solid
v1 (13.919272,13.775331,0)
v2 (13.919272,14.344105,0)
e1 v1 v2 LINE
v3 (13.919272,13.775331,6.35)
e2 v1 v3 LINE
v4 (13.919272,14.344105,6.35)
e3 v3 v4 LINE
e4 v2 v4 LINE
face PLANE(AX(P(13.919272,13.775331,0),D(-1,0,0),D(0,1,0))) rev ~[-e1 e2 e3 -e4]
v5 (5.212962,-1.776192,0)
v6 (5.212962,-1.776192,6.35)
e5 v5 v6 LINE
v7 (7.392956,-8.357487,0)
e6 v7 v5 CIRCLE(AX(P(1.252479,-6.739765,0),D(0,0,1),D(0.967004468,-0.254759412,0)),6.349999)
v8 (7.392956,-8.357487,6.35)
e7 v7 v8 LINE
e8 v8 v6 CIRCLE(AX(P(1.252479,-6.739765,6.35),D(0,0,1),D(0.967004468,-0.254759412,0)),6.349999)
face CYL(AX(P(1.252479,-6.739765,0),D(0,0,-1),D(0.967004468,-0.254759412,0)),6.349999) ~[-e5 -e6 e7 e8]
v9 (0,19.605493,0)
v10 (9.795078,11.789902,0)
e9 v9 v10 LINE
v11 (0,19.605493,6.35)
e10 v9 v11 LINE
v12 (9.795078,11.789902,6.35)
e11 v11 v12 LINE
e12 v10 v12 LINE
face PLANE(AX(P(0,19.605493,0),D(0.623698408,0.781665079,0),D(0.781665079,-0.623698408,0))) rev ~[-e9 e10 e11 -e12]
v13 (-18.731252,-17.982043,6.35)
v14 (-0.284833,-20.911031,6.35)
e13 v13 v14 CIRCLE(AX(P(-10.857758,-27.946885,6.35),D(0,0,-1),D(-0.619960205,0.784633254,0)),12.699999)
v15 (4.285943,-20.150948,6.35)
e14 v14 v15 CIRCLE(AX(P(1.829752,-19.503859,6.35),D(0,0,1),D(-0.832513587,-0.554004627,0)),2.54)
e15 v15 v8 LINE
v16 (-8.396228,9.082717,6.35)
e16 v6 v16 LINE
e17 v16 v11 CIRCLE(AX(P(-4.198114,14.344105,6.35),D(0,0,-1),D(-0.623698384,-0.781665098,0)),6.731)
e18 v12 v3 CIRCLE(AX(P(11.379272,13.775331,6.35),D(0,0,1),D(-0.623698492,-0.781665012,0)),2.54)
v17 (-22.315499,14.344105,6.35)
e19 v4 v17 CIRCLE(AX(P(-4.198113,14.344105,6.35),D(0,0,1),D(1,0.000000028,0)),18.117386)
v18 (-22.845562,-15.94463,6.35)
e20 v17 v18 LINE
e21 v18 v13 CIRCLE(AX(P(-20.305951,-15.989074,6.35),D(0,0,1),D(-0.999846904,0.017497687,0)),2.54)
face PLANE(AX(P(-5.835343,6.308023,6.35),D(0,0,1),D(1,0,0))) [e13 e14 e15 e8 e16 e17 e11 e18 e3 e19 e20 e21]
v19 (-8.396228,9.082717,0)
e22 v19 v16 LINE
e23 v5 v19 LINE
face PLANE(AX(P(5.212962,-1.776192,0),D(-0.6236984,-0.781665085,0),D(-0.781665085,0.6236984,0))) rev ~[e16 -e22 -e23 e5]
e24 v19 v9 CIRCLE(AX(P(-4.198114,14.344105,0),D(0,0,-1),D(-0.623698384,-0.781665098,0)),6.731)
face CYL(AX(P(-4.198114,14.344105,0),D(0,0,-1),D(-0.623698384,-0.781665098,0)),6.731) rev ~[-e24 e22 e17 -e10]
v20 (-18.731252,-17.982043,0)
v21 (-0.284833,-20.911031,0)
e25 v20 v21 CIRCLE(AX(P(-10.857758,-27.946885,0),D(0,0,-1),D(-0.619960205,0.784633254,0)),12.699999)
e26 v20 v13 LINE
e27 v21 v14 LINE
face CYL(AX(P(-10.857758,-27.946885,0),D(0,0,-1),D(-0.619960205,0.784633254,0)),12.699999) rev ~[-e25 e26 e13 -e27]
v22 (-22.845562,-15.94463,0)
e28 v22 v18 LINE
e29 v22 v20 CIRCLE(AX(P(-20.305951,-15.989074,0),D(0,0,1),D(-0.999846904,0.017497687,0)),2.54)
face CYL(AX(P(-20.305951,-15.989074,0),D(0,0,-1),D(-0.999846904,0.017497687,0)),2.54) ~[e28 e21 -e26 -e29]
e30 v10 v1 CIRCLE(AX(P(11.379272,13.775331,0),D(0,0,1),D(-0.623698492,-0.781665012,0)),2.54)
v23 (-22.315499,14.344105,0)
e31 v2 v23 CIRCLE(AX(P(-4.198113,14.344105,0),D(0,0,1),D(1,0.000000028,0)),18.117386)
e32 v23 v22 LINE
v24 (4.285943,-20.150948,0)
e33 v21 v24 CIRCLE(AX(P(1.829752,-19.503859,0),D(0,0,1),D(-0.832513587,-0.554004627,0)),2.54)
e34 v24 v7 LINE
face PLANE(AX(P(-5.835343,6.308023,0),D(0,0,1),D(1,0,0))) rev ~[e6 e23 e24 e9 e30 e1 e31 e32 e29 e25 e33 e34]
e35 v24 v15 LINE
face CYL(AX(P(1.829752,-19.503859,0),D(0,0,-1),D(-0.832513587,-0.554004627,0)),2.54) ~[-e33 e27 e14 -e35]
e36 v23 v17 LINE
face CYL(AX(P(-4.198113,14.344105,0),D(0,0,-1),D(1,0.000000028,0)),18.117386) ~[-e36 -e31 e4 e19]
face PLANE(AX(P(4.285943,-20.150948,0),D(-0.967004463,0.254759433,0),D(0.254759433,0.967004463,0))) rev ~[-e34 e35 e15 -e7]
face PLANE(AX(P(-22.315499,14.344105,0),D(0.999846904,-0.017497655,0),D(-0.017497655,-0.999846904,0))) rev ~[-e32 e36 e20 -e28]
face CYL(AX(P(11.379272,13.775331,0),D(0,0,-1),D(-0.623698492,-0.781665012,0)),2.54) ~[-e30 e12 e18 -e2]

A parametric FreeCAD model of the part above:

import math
import FreeCAD as App
import Part
import Sketcher
from FreeCAD import Vector
Q = App.Units.Quantity

doc = App.newDocument("Part")
body = doc.addObject("PartDesign::Body", "Body")

sketch1 = body.newObject("Sketcher::SketchObject", "Sketch")
sketch1.AttachmentSupport = (doc.getObject("XY_Plane"), [""])
sketch1.MapMode = "FlatFace"
sketch1.addGeometry(Part.ArcOfCircle(Part.Circle(Vector(-10.857758, -27.946885, 0), Vector(0, 0, 1), 12.699999), math.radians(33.642158), math.radians(128.313229)), False)
sketch1.addGeometry(Part.ArcOfCircle(Part.Circle(Vector(1.829752, -19.503859, 0), Vector(0, 0, 1), 2.54), math.radians(-146.357817), math.radians(-14.759326)), False)
sketch1.addGeometry(Part.LineSegment(Vector(4.285943, -20.150948, 0), Vector(7.392956, -8.357487, 0)), False)
sketch1.addGeometry(Part.ArcOfCircle(Part.Circle(Vector(1.252479, -6.739765, 0), Vector(0, 0, 1), 6.349999), math.radians(-14.75933), math.radians(51.413293)), False)
sketch1.addGeometry(Part.LineSegment(Vector(5.212962, -1.776192, 0), Vector(-8.396228, 9.082717, 0)), False)
sketch1.addGeometry(Part.ArcOfCircle(Part.Circle(Vector(-4.198114, 14.344105, 0), Vector(0, 0, 1), 6.731), math.radians(51.413284), math.radians(231.413284)), False)
sketch1.addGeometry(Part.LineSegment(Vector(0, 19.605493, 0), Vector(9.795078, 11.789902, 0)), False)
sketch1.addGeometry(Part.ArcOfCircle(Part.Circle(Vector(11.379272, 13.775331, 0), Vector(0, 0, 1), 2.54), math.radians(-128.586724), math.radians(-0.000001)), False)
sketch1.addGeometry(Part.LineSegment(Vector(13.919272, 13.775331, 0), Vector(13.919272, 14.344105, 0)), False)
sketch1.addGeometry(Part.ArcOfCircle(Part.Circle(Vector(-4.198113, 14.344105, 0), Vector(0, 0, 1), 18.117386), math.radians(0.000002), math.radians(179.999998)), False)
sketch1.addGeometry(Part.LineSegment(Vector(-22.315499, 14.344105, 0), Vector(-22.845562, -15.94463, 0)), False)
sketch1.addGeometry(Part.ArcOfCircle(Part.Circle(Vector(-20.305951, -15.989074, 0), Vector(0, 0, 1), 2.54), math.radians(178.997405), math.radians(308.313219)), False)
sketch1.addConstraint(Sketcher.Constraint("Coincident", 0, 1, 1, 1))
sketch1.addConstraint(Sketcher.Constraint("Coincident", 1, 2, 2, 1))
sketch1.addConstraint(Sketcher.Constraint("Coincident", 2, 2, 3, 1))
sketch1.addConstraint(Sketcher.Constraint("Coincident", 3, 2, 4, 1))
sketch1.addConstraint(Sketcher.Constraint("Coincident", 4, 2, 5, 2))
sketch1.addConstraint(Sketcher.Constraint("Coincident", 5, 1, 6, 1))
sketch1.addConstraint(Sketcher.Constraint("Coincident", 6, 2, 7, 1))
sketch1.addConstraint(Sketcher.Constraint("Coincident", 7, 2, 8, 1))
sketch1.addConstraint(Sketcher.Constraint("Coincident", 8, 2, 9, 1))
sketch1.addConstraint(Sketcher.Constraint("Coincident", 9, 2, 10, 1))
sketch1.addConstraint(Sketcher.Constraint("Coincident", 10, 2, 11, 1))
sketch1.addConstraint(Sketcher.Constraint("Coincident", 11, 2, 0, 2))
sketch1.addConstraint(Sketcher.Constraint("Vertical", 8))
sketch1.addConstraint(Sketcher.Constraint("Coincident", 9, 3, 5, 3))
sketch1.addConstraint(Sketcher.Constraint("PointOnObject", 5, 1, -2))
sketch1.addConstraint(Sketcher.Constraint("Radius", 0, Q("0.5 in")))
sketch1.addConstraint(Sketcher.Constraint("Radius", 1, Q("0.1 in")))
sketch1.addConstraint(Sketcher.Constraint("Radius", 7, Q("0.1 in")))
sketch1.addConstraint(Sketcher.Constraint("Radius", 11, Q("0.1 in")))
sketch1.addConstraint(Sketcher.Constraint("Radius", 3, Q("0.25 in")))
sketch1.addConstraint(Sketcher.Constraint("Radius", 5, Q("0.265 in")))
sketch1.addConstraint(Sketcher.Constraint("Radius", 9, 18.117386))
sketch1.addConstraint(Sketcher.Constraint("DistanceX", 9, 2, -1, 1, 22.315499))
sketch1.addConstraint(Sketcher.Constraint("DistanceX", 0, 3, 1, 2, 15.143701))
sketch1.addConstraint(Sketcher.Constraint("DistanceX", 4, 2, 7, 3, 19.7755))
sketch1.addConstraint(Sketcher.Constraint("DistanceY", 0, 1, 10, 2, 4.966401))
sketch1.addConstraint(Sketcher.Constraint("DistanceX", 11, 3, 11, 2, 1.574699))
sketch1.addConstraint(Sketcher.Constraint("Distance", 2, 12.19587))
sketch1.addConstraint(Sketcher.Constraint("DistanceY", 8, 1, 8, 2, 0.568774))
sketch1.addConstraint(Sketcher.Constraint("DistanceX", -1, 1, 1, 3, 1.829752))
sketch1.addConstraint(Sketcher.Constraint("DistanceY", 1, 3, -1, 1, 19.503859))
sketch1.addConstraint(Sketcher.Constraint("DistanceX", -1, 1, 3, 3, 1.252479))
sketch1.addConstraint(Sketcher.Constraint("DistanceY", -1, 1, 7, 3, 13.775331))
sketch1.addConstraint(Sketcher.Constraint("DistanceX", 11, 3, -1, 1, 20.305951))
sketch1.addConstraint(Sketcher.Constraint("DistanceY", 0, 1, -1, 1, 20.911031))
sketch1.addConstraint(Sketcher.Constraint("DistanceY", 1, 2, -1, 1, 20.150948))
sketch1.addConstraint(Sketcher.Constraint("DistanceY", 3, 2, -1, 1, 1.776192))
sketch1.addConstraint(Sketcher.Constraint("DistanceY", -1, 1, 7, 2, 13.775331))
sketch1.addConstraint(Sketcher.Constraint("DistanceY", 0, 3, 3, 3, 21.20712))
sketch1.addConstraint(Sketcher.Constraint("DistanceY", 3, 3, 5, 3, 21.08387))
sketch1.addConstraint(Sketcher.Constraint("DistanceY", 6, 2, 7, 3, 1.985429))
sketch1.addConstraint(Sketcher.Constraint("DistanceY", 4, 2, 9, 2, 5.261388))
pad1 = body.newObject("PartDesign::Pad", "Pad")
pad1.Profile = sketch1
pad1.Length = Q("0.25 in")

doc.recompute()
